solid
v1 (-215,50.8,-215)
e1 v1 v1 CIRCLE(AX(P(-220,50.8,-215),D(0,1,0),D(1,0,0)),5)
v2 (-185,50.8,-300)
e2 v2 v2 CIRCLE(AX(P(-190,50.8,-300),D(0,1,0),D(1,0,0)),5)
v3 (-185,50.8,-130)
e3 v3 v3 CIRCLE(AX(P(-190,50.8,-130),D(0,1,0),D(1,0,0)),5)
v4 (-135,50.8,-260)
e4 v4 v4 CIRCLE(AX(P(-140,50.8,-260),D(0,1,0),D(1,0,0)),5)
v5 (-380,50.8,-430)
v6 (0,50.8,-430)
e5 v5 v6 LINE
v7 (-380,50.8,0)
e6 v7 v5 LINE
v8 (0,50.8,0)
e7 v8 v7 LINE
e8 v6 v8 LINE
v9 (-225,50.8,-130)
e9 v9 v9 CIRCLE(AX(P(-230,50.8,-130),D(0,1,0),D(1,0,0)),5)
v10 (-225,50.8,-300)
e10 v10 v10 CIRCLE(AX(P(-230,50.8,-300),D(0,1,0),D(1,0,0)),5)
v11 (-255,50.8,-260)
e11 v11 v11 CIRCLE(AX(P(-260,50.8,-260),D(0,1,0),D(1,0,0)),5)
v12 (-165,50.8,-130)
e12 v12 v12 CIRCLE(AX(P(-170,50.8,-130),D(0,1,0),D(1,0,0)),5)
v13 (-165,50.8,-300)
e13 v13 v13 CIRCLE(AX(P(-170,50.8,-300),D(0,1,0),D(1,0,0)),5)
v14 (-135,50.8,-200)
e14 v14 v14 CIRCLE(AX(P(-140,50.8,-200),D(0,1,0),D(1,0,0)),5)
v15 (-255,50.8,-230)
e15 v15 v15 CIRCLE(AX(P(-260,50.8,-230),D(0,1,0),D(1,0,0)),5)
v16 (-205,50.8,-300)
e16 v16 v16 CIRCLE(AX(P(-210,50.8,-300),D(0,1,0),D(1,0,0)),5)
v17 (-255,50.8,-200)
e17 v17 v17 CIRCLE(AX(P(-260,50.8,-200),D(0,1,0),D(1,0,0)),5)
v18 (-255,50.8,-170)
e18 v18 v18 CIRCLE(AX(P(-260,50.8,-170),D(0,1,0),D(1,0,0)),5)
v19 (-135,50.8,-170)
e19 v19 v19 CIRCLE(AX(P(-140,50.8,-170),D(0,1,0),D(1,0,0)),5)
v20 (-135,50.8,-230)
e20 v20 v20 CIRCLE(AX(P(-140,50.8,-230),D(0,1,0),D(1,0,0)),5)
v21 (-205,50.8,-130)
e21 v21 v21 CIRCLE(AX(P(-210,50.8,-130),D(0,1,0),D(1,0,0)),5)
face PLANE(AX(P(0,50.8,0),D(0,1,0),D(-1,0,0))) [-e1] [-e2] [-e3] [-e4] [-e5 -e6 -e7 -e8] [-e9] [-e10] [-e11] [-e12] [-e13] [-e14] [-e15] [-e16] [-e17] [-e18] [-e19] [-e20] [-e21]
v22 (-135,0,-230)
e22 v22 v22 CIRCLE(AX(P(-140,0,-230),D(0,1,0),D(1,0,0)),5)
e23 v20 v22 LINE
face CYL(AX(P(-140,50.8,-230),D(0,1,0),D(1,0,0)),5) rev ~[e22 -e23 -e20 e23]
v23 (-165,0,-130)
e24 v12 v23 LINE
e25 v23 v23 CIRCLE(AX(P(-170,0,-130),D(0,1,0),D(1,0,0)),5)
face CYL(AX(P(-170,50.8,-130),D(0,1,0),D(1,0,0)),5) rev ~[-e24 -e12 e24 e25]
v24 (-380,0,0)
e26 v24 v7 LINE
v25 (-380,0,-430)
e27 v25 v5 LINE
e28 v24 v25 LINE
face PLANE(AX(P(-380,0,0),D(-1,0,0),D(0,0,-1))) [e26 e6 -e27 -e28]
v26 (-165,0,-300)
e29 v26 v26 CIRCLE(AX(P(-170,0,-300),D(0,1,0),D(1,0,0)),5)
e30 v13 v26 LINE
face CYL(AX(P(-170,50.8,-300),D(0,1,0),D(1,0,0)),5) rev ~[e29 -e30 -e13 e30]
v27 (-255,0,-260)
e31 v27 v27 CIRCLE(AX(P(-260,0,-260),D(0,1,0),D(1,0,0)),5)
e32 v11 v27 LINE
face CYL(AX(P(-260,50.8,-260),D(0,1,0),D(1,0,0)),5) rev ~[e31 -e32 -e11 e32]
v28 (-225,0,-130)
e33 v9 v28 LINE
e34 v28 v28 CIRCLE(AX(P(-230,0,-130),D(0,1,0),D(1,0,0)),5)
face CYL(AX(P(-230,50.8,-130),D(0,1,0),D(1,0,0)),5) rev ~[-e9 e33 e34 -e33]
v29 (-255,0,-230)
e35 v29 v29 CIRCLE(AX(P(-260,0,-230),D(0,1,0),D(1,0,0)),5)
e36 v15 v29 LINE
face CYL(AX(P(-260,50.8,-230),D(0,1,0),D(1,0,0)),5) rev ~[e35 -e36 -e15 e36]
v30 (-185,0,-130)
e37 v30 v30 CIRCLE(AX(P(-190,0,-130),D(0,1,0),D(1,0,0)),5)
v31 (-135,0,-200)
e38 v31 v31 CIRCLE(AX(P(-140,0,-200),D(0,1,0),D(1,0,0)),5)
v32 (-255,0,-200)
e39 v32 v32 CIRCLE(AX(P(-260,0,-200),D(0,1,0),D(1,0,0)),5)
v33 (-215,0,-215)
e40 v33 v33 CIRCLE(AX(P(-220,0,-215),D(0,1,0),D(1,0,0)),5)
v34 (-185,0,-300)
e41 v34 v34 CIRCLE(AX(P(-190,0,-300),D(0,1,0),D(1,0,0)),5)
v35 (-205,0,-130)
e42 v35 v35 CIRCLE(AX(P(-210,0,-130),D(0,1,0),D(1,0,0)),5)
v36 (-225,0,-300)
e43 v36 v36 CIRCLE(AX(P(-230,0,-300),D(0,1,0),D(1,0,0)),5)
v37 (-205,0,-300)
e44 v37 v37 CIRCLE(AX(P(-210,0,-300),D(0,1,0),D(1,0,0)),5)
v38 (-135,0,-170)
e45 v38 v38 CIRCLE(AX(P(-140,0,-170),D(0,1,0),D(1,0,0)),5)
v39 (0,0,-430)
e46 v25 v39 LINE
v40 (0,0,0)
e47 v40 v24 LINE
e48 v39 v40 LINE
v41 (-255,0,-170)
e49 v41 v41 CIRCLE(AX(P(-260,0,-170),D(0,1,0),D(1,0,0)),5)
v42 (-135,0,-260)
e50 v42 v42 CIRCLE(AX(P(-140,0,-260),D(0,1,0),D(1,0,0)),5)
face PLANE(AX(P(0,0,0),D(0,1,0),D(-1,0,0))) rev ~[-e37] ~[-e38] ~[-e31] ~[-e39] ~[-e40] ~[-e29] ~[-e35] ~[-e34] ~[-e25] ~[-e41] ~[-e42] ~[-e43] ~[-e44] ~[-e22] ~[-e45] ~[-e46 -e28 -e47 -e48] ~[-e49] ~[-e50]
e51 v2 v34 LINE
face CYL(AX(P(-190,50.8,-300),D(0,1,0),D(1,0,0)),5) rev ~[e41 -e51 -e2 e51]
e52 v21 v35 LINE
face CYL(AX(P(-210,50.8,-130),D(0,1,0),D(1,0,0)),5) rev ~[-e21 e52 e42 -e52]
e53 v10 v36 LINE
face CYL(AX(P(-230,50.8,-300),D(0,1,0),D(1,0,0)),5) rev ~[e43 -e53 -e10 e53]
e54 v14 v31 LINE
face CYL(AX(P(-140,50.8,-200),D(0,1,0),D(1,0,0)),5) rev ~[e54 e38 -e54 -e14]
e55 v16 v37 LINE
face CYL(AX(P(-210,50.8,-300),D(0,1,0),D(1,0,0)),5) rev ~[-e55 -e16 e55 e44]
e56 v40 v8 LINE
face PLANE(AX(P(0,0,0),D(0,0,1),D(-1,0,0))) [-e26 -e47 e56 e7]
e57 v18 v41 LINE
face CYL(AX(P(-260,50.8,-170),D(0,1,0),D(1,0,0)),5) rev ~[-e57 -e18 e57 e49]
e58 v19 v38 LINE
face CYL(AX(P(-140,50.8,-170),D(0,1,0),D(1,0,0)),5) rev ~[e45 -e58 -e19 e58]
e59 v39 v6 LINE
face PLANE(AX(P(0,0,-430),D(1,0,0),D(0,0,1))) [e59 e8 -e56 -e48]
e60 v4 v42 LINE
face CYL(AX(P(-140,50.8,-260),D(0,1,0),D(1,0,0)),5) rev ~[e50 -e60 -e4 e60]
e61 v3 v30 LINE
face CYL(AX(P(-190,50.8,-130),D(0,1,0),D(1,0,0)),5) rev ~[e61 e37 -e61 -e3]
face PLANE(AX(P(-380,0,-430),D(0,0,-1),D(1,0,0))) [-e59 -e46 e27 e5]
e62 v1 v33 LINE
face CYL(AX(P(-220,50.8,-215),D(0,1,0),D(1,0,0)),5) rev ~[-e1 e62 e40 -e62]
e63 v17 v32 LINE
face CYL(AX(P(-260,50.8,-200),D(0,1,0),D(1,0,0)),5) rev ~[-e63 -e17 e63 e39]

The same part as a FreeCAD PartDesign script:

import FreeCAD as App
import Part
import Sketcher
from FreeCAD import Vector

doc = App.newDocument("Part")
body = doc.addObject("PartDesign::Body", "Body")

# Sketch on XZ plane
sketch1 = doc.addObject("Sketcher::SketchObject", "Sketch")
body.addObject(sketch1)
sketch1.AttachmentSupport = (doc.XZ_Plane, [""])
sketch1.MapMode = "FlatFace"
sketch1.addGeometry(Part.LineSegment(Vector(-380, 0, 0), Vector(0, 0, 0)), False)
sketch1.addGeometry(Part.LineSegment(Vector(0, 0, 0), Vector(0, -430, 0)), False)
sketch1.addGeometry(Part.LineSegment(Vector(0, -430, 0), Vector(-380, -430, 0)), False)
sketch1.addGeometry(Part.LineSegment(Vector(-380, -430, 0), Vector(-380, 0, 0)), False)
sketch1.addConstraint(Sketcher.Constraint("Coincident", 0, 2, 1, 1))
sketch1.addConstraint(Sketcher.Constraint("Coincident", 1, 2, 2, 1))
sketch1.addConstraint(Sketcher.Constraint("Coincident", 2, 2, 3, 1))
sketch1.addConstraint(Sketcher.Constraint("Coincident", 3, 2, 0, 1))
sketch1.addConstraint(Sketcher.Constraint("Horizontal", 0))
sketch1.addConstraint(Sketcher.Constraint("Vertical", 1))
sketch1.addConstraint(Sketcher.Constraint("Horizontal", 2))
sketch1.addConstraint(Sketcher.Constraint("Vertical", 3))
sketch1.addConstraint(Sketcher.Constraint("Coincident", 0, 2, -1, 1))
sketch1.addConstraint(Sketcher.Constraint("DistanceX", 0, 1, 0, 2, 380.0))
sketch1.addConstraint(Sketcher.Constraint("DistanceY", 1, 2, 1, 1, 430.0))
pad1 = doc.addObject("PartDesign::Pad", "Pad")
body.addObject(pad1)
pad1.Profile = sketch1
pad1.Length = 50.8
pad1.Reversed = True

# Sketch on XZ plane
sketch2 = doc.addObject("Sketcher::SketchObject", "Sketch001")
body.addObject(sketch2)
sketch2.AttachmentSupport = (doc.XZ_Plane, [""])
sketch2.MapMode = "FlatFace"
sketch2.AttachmentOffset = App.Placement(Vector(0, 0, -50.8), App.Rotation())
sketch2.addGeometry(Part.Circle(Vector(-220, -215, 0), Vector(0, 0, 1), 5), False)
sketch2.addConstraint(Sketcher.Constraint("Diameter", 0, 10.0))
sketch2.addConstraint(Sketcher.Constraint("DistanceY", 0, 3, -1, 1, 215.0))
sketch2.addConstraint(Sketcher.Constraint("DistanceX", 0, 3, -1, 1, 220.0))
pocket1 = doc.addObject("PartDesign::Pocket", "Pocket")
body.addObject(pocket1)
pocket1.Profile = sketch2
pocket1.Length = 50.8
pocket1.Reversed = True

# Sketch on XZ plane
sketch3 = doc.addObject("Sketcher::SketchObject", "Sketch002")
body.addObject(sketch3)
sketch3.AttachmentSupport = (doc.XZ_Plane, [""])
sketch3.MapMode = "FlatFace"
sketch3.AttachmentOffset = App.Placement(Vector(0, 0, -50.8), App.Rotation())
sketch3.addGeometry(Part.Circle(Vector(-170, -130, 0), Vector(0, 0, 1), 5), False)
sketch3.addGeometry(Part.Circle(Vector(-190, -130, 0), Vector(0, 0, 1), 5), False)
sketch3.addGeometry(Part.Circle(Vector(-210, -130, 0), Vector(0, 0, 1), 5), False)
sketch3.addGeometry(Part.Circle(Vector(-230, -130, 0), Vector(0, 0, 1), 5), False)
sketch3.addConstraint(Sketcher.Constraint("Equal", 0, 1))
sketch3.addConstraint(Sketcher.Constraint("Equal", 1, 2))
sketch3.addConstraint(Sketcher.Constraint("Equal", 2, 3))
sketch3.addConstraint(Sketcher.Constraint("Horizontal", 0, 3, 1, 3))
sketch3.addConstraint(Sketcher.Constraint("Horizontal", 1, 3, 2, 3))
sketch3.addConstraint(Sketcher.Constraint("Horizontal", 2, 3, 3, 3))
sketch3.addConstraint(Sketcher.Constraint("Diameter", 0, 10.0))
sketch3.addConstraint(Sketcher.Constraint("DistanceX", 0, 3, -1, 1, 170.0))
sketch3.addConstraint(Sketcher.Constraint("DistanceY", 0, 3, -1, 1, 130.0))
sketch3.addConstraint(Sketcher.Constraint("DistanceX", 1, 3, 0, 3, 20.0))
sketch3.addConstraint(Sketcher.Constraint("DistanceX", 2, 3, 1, 3, 20.0))
sketch3.addConstraint(Sketcher.Constraint("DistanceX", 3, 3, 2, 3, 20.0))
pocket2 = doc.addObject("PartDesign::Pocket", "Pocket001")
body.addObject(pocket2)
pocket2.Profile = sketch3
pocket2.Length = 50.8
pocket2.Reversed = True

# Sketch on XZ plane
sketch4 = doc.addObject("Sketcher::SketchObject", "Sketch003")
body.addObject(sketch4)
sketch4.AttachmentSupport = (doc.XZ_Plane, [""])
sketch4.MapMode = "FlatFace"
sketch4.AttachmentOffset = App.Placement(Vector(0, 0, -50.8), App.Rotation())
sketch4.addGeometry(Part.Circle(Vector(-170, -300, 0), Vector(0, 0, 1), 5), False)
sketch4.addGeometry(Part.Circle(Vector(-190, -300, 0), Vector(0, 0, 1), 5), False)
sketch4.addGeometry(Part.Circle(Vector(-210, -300, 0), Vector(0, 0, 1), 5), False)
sketch4.addGeometry(Part.Circle(Vector(-230, -300, 0), Vector(0, 0, 1), 5), False)
sketch4.addConstraint(Sketcher.Constraint("Equal", 0, 1))
sketch4.addConstraint(Sketcher.Constraint("Equal", 1, 2))
sketch4.addConstraint(Sketcher.Constraint("Equal", 2, 3))
sketch4.addConstraint(Sketcher.Constraint("Horizontal", 0, 3, 1, 3))
sketch4.addConstraint(Sketcher.Constraint("Horizontal", 1, 3, 2, 3))
sketch4.addConstraint(Sketcher.Constraint("Horizontal", 2, 3, 3, 3))
sketch4.addConstraint(Sketcher.Constraint("Diameter", 0, 10.0))
sketch4.addConstraint(Sketcher.Constraint("DistanceX", 0, 3, -1, 1, 170.0))
sketch4.addConstraint(Sketcher.Constraint("DistanceX", 1, 3, 0, 3, 20.0))
sketch4.addConstraint(Sketcher.Constraint("DistanceX", 2, 3, 1, 3, 20.0))
sketch4.addConstraint(Sketcher.Constraint("DistanceX", 3, 3, 2, 3, 20.0))
sketch4.addConstraint(Sketcher.Constraint("DistanceY", 0, 3, -1, 1, 300.0))
pocket3 = doc.addObject("PartDesign::Pocket", "Pocket002")
body.addObject(pocket3)
pocket3.Profile = sketch4
pocket3.Length = 50.8
pocket3.Reversed = True

# Sketch on XZ plane
sketch5 = doc.addObject("Sketcher::SketchObject", "Sketch004")
body.addObject(sketch5)
sketch5.AttachmentSupport = (doc.XZ_Plane, [""])
sketch5.MapMode = "FlatFace"
sketch5.AttachmentOffset = App.Placement(Vector(0, 0, -50.8), App.Rotation())
sketch5.addGeometry(Part.Circle(Vector(-260, -170, 0), Vector(0, 0, 1), 5), False)
sketch5.addGeometry(Part.Circle(Vector(-140, -170, 0), Vector(0, 0, 1), 5), False)
sketch5.addGeometry(Part.Circle(Vector(-260, -200, 0), Vector(0, 0, 1), 5), False)
sketch5.addGeometry(Part.Circle(Vector(-140, -200, 0), Vector(0, 0, 1), 5), False)
sketch5.addGeometry(Part.Circle(Vector(-260, -230, 0), Vector(0, 0, 1), 5), False)
sketch5.addGeometry(Part.Circle(Vector(-140, -230, 0), Vector(0, 0, 1), 5), False)
sketch5.addGeometry(Part.Circle(Vector(-260, -260, 0), Vector(0, 0, 1), 5), False)
sketch5.addGeometry(Part.Circle(Vector(-140, -260, 0), Vector(0, 0, 1), 5), False)
sketch5.addConstraint(Sketcher.Constraint("Equal", 0, 1))
sketch5.addConstraint(Sketcher.Constraint("Equal", 1, 2))
sketch5.addConstraint(Sketcher.Constraint("Equal", 2, 3))
sketch5.addConstraint(Sketcher.Constraint("Equal", 3, 4))
sketch5.addConstraint(Sketcher.Constraint("Equal", 4, 5))
sketch5.addConstraint(Sketcher.Constraint("Equal", 5, 6))
sketch5.addConstraint(Sketcher.Constraint("Equal", 6, 7))
sketch5.addConstraint(Sketcher.Constraint("Horizontal", 0, 3, 1, 3))
sketch5.addConstraint(Sketcher.Constraint("Horizontal", 2, 3, 3, 3))
sketch5.addConstraint(Sketcher.Constraint("Horizontal", 4, 3, 5, 3))
sketch5.addConstraint(Sketcher.Constraint("Horizontal", 6, 3, 7, 3))
sketch5.addConstraint(Sketcher.Constraint("Vertical", 0, 3, 2, 3))
sketch5.addConstraint(Sketcher.Constraint("Vertical", 1, 3, 3, 3))
sketch5.addConstraint(Sketcher.Constraint("Vertical", 2, 3, 4, 3))
sketch5.addConstraint(Sketcher.Constraint("Vertical", 3, 3, 5, 3))
sketch5.addConstraint(Sketcher.Constraint("Vertical", 4, 3, 6, 3))
sketch5.addConstraint(Sketcher.Constraint("Vertical", 5, 3, 7, 3))
sketch5.addConstraint(Sketcher.Constraint("Diameter", 0, 10.0))
sketch5.addConstraint(Sketcher.Constraint("DistanceY", 0, 3, -1, 1, 170.0))
sketch5.addConstraint(Sketcher.Constraint("DistanceX", 1, 3, -1, 1, 140.0))
sketch5.addConstraint(Sketcher.Constraint("DistanceX", 0, 3, 1, 3, 120.0))
sketch5.addConstraint(Sketcher.Constraint("DistanceY", 2, 3, 0, 3, 30.0))
sketch5.addConstraint(Sketcher.Constraint("DistanceY", 4, 3, 2, 3, 30.0))
sketch5.addConstraint(Sketcher.Constraint("DistanceY", 6, 3, 4, 3, 30.0))
pocket4 = doc.addObject("PartDesign::Pocket", "Pocket003")
body.addObject(pocket4)
pocket4.Profile = sketch5
pocket4.Length = 50.8
pocket4.Reversed = True

doc.recompute()
